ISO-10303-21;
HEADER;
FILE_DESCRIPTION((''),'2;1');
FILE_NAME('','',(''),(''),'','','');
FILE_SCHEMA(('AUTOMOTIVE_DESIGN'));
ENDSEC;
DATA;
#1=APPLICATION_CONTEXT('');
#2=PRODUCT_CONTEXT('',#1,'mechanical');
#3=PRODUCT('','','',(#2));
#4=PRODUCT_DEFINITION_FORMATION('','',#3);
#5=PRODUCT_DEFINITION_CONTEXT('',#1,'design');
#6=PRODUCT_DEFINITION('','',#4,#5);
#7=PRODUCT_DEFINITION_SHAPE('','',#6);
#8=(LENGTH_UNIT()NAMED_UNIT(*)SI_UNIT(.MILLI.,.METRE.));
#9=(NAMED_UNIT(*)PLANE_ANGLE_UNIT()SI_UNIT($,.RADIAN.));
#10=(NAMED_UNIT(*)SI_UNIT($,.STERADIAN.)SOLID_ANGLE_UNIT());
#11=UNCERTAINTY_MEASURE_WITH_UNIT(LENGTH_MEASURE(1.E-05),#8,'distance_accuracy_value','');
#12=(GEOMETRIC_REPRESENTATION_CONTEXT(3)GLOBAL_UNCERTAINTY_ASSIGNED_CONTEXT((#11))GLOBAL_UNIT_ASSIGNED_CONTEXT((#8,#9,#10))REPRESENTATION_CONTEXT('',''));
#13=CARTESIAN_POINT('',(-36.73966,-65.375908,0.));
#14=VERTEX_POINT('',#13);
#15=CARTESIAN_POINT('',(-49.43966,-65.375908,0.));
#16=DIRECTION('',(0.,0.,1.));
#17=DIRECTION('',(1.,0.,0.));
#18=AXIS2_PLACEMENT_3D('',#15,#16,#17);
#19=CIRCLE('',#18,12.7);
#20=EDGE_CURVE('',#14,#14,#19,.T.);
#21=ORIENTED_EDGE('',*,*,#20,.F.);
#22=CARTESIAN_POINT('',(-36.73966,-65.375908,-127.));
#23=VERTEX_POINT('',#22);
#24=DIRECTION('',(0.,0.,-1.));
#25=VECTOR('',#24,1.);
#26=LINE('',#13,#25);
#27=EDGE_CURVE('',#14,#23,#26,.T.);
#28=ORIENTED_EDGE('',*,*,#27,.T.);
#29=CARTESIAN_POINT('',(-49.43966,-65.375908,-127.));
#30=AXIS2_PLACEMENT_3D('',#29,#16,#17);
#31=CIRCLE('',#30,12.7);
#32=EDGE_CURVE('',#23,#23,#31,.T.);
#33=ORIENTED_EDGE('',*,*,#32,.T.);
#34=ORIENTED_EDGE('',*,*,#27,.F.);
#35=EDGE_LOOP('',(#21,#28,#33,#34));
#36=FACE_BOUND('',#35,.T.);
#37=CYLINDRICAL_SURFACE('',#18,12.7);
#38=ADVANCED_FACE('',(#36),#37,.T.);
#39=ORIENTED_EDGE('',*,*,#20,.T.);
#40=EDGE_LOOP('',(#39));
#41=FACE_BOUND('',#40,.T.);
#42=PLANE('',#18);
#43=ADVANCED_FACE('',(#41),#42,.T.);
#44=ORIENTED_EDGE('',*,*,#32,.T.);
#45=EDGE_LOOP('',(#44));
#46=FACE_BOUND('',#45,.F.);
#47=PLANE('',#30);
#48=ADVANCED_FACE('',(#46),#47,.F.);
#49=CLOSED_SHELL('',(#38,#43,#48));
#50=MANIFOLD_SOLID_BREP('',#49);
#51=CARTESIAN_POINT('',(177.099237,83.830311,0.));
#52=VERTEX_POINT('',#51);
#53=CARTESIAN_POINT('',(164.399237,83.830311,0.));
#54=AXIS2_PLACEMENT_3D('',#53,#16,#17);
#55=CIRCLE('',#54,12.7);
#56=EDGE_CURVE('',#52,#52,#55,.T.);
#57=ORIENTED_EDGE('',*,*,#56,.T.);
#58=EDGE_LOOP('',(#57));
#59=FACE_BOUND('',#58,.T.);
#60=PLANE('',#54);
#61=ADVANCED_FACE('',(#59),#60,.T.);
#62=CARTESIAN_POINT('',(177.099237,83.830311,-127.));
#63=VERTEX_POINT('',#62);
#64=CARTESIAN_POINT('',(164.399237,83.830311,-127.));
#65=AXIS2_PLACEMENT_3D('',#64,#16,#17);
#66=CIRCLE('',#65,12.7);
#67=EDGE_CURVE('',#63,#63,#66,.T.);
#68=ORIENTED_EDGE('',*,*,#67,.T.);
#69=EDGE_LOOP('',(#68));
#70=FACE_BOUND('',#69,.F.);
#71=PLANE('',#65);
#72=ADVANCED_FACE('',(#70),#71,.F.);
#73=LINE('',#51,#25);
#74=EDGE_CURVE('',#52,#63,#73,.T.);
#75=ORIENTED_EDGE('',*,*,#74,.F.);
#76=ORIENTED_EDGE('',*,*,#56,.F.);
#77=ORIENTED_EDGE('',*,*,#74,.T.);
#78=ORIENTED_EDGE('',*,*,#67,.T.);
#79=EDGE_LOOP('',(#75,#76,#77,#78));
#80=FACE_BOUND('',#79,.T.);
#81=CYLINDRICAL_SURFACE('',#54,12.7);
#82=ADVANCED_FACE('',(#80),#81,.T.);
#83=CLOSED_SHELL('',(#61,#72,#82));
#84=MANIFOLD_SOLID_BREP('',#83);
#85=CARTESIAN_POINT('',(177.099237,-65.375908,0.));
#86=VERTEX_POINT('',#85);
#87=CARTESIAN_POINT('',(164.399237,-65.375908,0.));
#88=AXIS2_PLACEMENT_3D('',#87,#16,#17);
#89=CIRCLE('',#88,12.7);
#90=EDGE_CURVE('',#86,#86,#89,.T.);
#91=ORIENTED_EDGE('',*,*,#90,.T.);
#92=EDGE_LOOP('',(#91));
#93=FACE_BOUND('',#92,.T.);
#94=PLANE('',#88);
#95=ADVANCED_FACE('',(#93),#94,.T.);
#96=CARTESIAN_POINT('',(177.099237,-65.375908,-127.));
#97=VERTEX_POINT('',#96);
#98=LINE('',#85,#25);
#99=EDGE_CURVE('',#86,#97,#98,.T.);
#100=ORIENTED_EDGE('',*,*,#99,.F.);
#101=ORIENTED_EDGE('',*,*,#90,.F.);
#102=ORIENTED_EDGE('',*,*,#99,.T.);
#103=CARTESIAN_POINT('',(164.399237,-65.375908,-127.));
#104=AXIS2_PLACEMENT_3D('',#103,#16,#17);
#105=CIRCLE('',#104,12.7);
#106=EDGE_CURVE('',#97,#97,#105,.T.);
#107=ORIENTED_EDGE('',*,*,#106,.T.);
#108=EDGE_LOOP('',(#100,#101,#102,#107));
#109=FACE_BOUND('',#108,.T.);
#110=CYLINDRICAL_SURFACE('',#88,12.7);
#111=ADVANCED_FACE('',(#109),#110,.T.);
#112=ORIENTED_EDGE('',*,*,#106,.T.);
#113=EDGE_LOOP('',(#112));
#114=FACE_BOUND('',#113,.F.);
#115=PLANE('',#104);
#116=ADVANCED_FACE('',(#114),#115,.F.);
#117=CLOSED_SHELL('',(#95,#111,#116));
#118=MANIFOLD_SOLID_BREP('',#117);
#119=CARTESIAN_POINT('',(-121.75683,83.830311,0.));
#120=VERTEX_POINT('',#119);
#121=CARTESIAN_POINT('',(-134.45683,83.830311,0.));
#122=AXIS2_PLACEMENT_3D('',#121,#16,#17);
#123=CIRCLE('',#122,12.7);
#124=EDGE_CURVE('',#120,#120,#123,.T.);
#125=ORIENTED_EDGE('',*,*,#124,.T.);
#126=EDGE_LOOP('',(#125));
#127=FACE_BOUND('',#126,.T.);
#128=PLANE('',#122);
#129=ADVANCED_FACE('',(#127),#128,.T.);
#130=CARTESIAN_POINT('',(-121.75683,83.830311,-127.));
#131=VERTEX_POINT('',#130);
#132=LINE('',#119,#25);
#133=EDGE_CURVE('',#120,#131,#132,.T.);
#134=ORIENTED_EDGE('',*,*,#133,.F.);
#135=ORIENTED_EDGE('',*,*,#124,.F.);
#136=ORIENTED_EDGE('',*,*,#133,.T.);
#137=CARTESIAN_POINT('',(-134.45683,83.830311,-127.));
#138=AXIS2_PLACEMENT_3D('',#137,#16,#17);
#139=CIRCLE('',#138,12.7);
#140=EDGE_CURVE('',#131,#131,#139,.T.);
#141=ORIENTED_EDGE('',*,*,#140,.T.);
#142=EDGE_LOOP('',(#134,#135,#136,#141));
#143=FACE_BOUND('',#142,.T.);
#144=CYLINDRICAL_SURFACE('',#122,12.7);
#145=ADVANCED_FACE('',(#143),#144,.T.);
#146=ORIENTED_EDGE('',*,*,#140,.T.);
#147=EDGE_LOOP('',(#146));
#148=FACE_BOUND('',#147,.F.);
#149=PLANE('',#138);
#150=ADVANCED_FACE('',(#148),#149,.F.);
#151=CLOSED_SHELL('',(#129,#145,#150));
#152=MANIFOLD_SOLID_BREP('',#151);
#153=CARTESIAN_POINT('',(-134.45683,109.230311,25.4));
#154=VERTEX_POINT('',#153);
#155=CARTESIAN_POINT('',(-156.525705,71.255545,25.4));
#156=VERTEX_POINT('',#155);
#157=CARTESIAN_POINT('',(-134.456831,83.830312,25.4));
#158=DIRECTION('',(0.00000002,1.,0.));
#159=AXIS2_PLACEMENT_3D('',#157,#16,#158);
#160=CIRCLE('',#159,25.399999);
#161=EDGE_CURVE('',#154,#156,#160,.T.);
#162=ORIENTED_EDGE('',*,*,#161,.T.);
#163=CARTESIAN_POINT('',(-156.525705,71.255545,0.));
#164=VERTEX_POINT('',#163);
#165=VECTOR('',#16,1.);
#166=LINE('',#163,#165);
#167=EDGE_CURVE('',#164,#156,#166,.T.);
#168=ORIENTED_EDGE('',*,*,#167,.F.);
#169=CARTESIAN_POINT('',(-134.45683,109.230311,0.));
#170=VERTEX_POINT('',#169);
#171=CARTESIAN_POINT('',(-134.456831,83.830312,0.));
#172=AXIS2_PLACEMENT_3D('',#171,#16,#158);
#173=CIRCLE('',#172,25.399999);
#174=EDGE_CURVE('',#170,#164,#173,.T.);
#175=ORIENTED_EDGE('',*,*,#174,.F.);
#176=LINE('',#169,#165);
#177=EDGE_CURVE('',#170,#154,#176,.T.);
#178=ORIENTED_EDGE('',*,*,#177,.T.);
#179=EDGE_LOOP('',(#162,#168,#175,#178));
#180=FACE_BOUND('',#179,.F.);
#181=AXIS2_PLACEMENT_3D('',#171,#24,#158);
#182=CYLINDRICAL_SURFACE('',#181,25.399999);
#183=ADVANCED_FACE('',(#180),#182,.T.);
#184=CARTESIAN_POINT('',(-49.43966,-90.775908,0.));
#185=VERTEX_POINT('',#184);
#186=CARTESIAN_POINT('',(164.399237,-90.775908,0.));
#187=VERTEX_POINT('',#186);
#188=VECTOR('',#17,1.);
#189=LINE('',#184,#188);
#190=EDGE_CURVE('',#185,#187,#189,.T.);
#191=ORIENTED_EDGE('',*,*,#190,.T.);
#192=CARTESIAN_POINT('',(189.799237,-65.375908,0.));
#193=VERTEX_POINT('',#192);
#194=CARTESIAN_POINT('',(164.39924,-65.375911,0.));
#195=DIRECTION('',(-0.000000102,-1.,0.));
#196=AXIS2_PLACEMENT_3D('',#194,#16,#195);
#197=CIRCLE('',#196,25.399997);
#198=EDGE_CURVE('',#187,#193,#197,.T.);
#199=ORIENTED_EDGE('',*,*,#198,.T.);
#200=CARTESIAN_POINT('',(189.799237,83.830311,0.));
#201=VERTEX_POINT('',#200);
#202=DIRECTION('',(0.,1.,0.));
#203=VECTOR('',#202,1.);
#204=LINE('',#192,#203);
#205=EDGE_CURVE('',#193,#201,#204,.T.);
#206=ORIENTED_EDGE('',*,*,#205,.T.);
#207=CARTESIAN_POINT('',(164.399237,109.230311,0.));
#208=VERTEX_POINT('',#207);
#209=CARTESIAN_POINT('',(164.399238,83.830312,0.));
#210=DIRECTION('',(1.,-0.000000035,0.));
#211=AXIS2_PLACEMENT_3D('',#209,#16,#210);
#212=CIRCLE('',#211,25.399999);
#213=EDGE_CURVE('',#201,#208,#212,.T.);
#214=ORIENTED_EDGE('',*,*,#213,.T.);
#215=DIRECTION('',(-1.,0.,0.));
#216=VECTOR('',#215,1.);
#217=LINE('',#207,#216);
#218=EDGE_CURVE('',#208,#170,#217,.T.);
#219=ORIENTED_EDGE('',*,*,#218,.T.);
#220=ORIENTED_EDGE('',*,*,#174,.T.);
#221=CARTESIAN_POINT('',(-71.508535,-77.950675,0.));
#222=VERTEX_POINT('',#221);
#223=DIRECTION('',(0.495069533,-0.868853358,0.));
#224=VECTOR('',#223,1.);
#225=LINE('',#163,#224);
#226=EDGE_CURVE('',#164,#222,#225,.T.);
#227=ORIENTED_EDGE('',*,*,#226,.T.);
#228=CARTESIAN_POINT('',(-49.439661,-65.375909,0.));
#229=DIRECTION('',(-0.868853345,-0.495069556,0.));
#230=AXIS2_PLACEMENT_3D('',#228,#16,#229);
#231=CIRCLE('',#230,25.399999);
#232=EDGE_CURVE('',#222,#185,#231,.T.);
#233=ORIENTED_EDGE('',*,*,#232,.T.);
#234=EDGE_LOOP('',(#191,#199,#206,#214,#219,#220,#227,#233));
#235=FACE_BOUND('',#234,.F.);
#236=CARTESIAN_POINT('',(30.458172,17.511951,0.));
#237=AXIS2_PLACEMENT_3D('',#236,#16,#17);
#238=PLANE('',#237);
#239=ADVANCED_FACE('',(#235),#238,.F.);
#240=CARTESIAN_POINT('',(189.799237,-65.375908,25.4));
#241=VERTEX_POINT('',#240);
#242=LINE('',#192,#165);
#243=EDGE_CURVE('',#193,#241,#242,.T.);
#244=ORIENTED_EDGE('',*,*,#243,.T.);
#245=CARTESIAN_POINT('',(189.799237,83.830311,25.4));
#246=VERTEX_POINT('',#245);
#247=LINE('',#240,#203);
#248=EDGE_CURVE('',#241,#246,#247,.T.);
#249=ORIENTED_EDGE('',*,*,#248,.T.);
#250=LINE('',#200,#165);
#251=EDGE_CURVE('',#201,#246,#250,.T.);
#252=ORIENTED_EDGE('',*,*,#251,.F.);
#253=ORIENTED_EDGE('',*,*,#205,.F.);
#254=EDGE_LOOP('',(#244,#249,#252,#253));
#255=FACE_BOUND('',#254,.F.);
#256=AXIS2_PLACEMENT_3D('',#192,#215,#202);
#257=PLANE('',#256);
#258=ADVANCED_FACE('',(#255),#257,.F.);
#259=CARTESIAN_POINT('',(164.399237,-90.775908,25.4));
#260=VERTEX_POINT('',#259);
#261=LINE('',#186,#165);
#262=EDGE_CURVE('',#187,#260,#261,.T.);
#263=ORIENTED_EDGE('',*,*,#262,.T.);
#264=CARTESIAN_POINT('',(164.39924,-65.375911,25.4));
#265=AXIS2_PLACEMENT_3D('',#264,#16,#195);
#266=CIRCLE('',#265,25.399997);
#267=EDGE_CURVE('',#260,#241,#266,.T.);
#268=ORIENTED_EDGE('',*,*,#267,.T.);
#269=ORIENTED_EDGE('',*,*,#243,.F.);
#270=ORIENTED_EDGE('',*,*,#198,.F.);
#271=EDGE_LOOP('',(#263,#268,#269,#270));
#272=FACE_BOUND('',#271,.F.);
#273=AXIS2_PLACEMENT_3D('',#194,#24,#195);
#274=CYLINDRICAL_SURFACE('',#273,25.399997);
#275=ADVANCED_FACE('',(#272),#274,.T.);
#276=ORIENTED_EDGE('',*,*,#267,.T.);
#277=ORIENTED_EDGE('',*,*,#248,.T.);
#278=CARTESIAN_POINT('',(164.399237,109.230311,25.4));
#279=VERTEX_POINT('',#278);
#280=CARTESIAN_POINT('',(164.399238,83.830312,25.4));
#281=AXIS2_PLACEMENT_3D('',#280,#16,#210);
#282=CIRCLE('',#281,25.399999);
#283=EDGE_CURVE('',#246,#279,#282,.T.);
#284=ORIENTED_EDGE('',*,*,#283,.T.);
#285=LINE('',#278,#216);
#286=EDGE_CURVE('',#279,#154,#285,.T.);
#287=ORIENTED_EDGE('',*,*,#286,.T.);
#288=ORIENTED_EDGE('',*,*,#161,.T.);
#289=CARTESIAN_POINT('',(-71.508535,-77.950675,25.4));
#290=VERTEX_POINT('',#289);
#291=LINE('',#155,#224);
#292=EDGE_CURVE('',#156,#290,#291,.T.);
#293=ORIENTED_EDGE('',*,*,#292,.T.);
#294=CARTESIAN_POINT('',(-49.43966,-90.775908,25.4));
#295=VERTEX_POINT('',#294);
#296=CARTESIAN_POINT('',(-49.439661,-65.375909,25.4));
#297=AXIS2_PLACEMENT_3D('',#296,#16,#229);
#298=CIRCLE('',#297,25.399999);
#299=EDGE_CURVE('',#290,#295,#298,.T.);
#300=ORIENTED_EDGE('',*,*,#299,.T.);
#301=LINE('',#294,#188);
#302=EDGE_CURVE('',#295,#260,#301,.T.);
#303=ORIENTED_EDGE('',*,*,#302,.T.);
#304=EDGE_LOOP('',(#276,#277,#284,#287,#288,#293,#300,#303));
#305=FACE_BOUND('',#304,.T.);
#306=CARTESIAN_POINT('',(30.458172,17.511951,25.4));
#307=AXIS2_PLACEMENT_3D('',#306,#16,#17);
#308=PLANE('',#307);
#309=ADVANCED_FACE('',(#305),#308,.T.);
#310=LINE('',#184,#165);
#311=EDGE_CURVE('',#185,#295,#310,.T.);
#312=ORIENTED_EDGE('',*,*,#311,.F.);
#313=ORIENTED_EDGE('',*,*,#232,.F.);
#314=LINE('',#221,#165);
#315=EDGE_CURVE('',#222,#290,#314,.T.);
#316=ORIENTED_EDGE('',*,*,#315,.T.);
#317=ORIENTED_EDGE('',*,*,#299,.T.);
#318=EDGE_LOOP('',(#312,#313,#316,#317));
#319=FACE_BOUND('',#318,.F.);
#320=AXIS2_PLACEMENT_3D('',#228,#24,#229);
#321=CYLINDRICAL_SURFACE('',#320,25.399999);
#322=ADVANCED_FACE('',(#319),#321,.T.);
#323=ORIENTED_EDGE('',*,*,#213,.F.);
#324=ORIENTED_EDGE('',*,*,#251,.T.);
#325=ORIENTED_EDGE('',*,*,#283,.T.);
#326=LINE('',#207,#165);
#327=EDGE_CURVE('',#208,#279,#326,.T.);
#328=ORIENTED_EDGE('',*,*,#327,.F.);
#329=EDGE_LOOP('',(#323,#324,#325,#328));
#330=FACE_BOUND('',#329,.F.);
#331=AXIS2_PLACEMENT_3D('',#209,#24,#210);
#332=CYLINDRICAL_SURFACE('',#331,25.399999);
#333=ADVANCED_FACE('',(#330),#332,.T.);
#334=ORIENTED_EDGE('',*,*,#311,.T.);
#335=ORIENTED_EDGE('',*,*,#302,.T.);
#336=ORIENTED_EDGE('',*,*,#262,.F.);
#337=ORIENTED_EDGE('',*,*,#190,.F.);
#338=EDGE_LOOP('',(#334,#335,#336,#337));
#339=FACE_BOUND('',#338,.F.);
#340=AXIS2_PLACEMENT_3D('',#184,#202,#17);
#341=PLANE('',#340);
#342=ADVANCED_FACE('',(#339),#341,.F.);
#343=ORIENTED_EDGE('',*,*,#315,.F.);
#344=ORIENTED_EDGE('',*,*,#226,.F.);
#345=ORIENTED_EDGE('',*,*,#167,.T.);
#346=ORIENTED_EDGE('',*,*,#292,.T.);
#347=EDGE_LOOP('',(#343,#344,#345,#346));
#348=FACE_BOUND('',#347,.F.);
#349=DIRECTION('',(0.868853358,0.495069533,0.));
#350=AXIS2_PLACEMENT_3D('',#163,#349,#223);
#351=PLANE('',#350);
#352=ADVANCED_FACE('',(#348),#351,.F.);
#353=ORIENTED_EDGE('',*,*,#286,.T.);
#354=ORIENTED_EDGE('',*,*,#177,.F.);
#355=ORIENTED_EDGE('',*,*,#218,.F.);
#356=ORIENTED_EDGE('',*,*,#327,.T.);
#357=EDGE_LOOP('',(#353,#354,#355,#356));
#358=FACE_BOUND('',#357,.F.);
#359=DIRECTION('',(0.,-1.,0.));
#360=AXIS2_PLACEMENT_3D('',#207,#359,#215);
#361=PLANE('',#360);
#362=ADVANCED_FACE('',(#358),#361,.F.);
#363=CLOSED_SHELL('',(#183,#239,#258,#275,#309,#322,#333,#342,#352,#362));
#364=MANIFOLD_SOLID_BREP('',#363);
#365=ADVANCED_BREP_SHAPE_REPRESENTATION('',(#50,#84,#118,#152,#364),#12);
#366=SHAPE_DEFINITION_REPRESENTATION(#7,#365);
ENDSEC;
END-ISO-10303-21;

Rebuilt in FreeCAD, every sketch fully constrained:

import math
import FreeCAD as App
import Part
import Sketcher
from FreeCAD import Vector
Q = App.Units.Quantity

doc = App.newDocument("Part")
body = doc.addObject("PartDesign::Body", "Body")

sketch1 = body.newObject("Sketcher::SketchObject", "Sketch")
sketch1.AttachmentSupport = (doc.getObject("XY_Plane"), [""])
sketch1.MapMode = "FlatFace"
sketch1.addGeometry(Part.Circle(Vector(-134, 84, 0), Vector(0, 0, 1), 13), False)
sketch1.addConstraint(Sketcher.Constraint("Diameter", 0, Q("1 in")))
sketch1.addConstraint(Sketcher.Constraint("DistanceX", 0, 3, -1, 1, Q("134.45683 mm")))
sketch1.addConstraint(Sketcher.Constraint("DistanceY", -1, 1, 0, 3, Q("83.830311 mm")))
pad1 = body.newObject("PartDesign::Pad", "Pad")
pad1.Profile = sketch1
pad1.Length = Q("5 in")
pad1.Reversed = True
body2 = doc.addObject("PartDesign::Body", "Body001")

sketch2 = body2.newObject("Sketcher::SketchObject", "Sketch001")
sketch2.AttachmentSupport = (doc.getObject("XY_Plane001"), [""])
sketch2.MapMode = "FlatFace"
sketch2.addGeometry(Part.Circle(Vector(-49, -65, 0), Vector(0, 0, 1), 13), False)
sketch2.addConstraint(Sketcher.Constraint("Diameter", 0, Q("1 in")))
sketch2.addConstraint(Sketcher.Constraint("DistanceX", 0, 3, -1, 1, Q("49.43966 mm")))
sketch2.addConstraint(Sketcher.Constraint("DistanceY", 0, 3, -1, 1, Q("65.375908 mm")))
pad2 = body2.newObject("PartDesign::Pad", "Pad001")
pad2.Profile = sketch2
pad2.Length = Q("5 in")
pad2.Reversed = True
body3 = doc.addObject("PartDesign::Body", "Body002")

sketch3 = body3.newObject("Sketcher::SketchObject", "Sketch002")
sketch3.AttachmentSupport = (doc.getObject("XY_Plane002"), [""])
sketch3.MapMode = "FlatFace"
sketch3.addGeometry(Part.Circle(Vector(164, -65, 0), Vector(0, 0, 1), 13), False)
sketch3.addConstraint(Sketcher.Constraint("Diameter", 0, Q("1 in")))
sketch3.addConstraint(Sketcher.Constraint("DistanceX", -1, 1, 0, 3, Q("164.399237 mm")))
sketch3.addConstraint(Sketcher.Constraint("DistanceY", 0, 3, -1, 1, Q("65.375908 mm")))
pad3 = body3.newObject("PartDesign::Pad", "Pad002")
pad3.Profile = sketch3
pad3.Length = Q("5 in")
pad3.Reversed = True
body4 = doc.addObject("PartDesign::Body", "Body003")

sketch4 = body4.newObject("Sketcher::SketchObject", "Sketch003")
sketch4.AttachmentSupport = (doc.getObject("XY_Plane003"), [""])
sketch4.MapMode = "FlatFace"
sketch4.addGeometry(Part.Circle(Vector(164, 84, 0), Vector(0, 0, 1), 13), False)
sketch4.addConstraint(Sketcher.Constraint("Diameter", 0, Q("1 in")))
sketch4.addConstraint(Sketcher.Constraint("DistanceY", -1, 1, 0, 3, Q("83.830311 mm")))
sketch4.addConstraint(Sketcher.Constraint("DistanceX", -1, 1, 0, 3, Q("164.399237 mm")))
pad4 = body4.newObject("PartDesign::Pad", "Pad003")
pad4.Profile = sketch4
pad4.Length = Q("5 in")
pad4.Reversed = True
body5 = doc.addObject("PartDesign::Body", "Body004")

sketch5 = body5.newObject("Sketcher::SketchObject", "Sketch004")
sketch5.AttachmentSupport = (doc.getObject("XY_Plane004"), [""])
sketch5.MapMode = "FlatFace"
sketch5.addGeometry(Part.LineSegment(Vector(164, 109, 0), Vector(-134, 109, 0)), False)
sketch5.addGeometry(Part.ArcOfCircle(Part.Circle(Vector(-134, 84, 0), Vector(0, 0, 1), 25), math.radians(90), math.radians(210)), False)
sketch5.addGeometry(Part.LineSegment(Vector(-157, 71, 0), Vector(-72, -78, 0)), False)
sketch5.addGeometry(Part.ArcOfCircle(Part.Circle(Vector(-49, -65, 0), Vector(0, 0, 1), 25), math.radians(-150), math.radians(-90)), False)
sketch5.addGeometry(Part.LineSegment(Vector(-49, -91, 0), Vector(164, -91, 0)), False)
sketch5.addGeometry(Part.ArcOfCircle(Part.Circle(Vector(164, -65, 0), Vector(0, 0, 1), 25), math.radians(-90), math.radians(0)), False)
sketch5.addGeometry(Part.LineSegment(Vector(190, -65, 0), Vector(190, 84, 0)), False)
sketch5.addGeometry(Part.ArcOfCircle(Part.Circle(Vector(164, 84, 0), Vector(0, 0, 1), 25), math.radians(0), math.radians(90)), False)
sketch5.addConstraint(Sketcher.Constraint("Tangent", 0, 2, 1, 1))
sketch5.addConstraint(Sketcher.Constraint("Tangent", 1, 2, 2, 1))
sketch5.addConstraint(Sketcher.Constraint("Tangent", 2, 2, 3, 1))
sketch5.addConstraint(Sketcher.Constraint("Tangent", 3, 2, 4, 1))
sketch5.addConstraint(Sketcher.Constraint("Tangent", 4, 2, 5, 1))
sketch5.addConstraint(Sketcher.Constraint("Tangent", 5, 2, 6, 1))
sketch5.addConstraint(Sketcher.Constraint("Tangent", 6, 2, 7, 1))
sketch5.addConstraint(Sketcher.Constraint("Tangent", 7, 2, 0, 1))
sketch5.addConstraint(Sketcher.Constraint("Horizontal", 0))
sketch5.addConstraint(Sketcher.Constraint("Horizontal", 4))
sketch5.addConstraint(Sketcher.Constraint("Vertical", 6))
sketch5.addConstraint(Sketcher.Constraint("Equal", 1, 3))
sketch5.addConstraint(Sketcher.Constraint("Equal", 5, 7))
sketch5.addConstraint(Sketcher.Constraint("Horizontal", 1, 3, 7, 3))
sketch5.addConstraint(Sketcher.Constraint("Radius", 1, Q("1 in")))
sketch5.addConstraint(Sketcher.Constraint("DistanceY", 6, 1, 6, 2, Q("149.206219 mm")))
sketch5.addConstraint(Sketcher.Constraint("DistanceX", 3, 3, 5, 3, Q("213.8389 mm")))
sketch5.addConstraint(Sketcher.Constraint("DistanceX", 0, 2, 0, 1, Q("298.856067 mm")))
sketch5.addConstraint(Sketcher.Constraint("DistanceX", 1, 3, -1, 1, Q("134.456831 mm")))
sketch5.addConstraint(Sketcher.Constraint("DistanceY", -1, 1, 1, 3, Q("83.830312 mm")))
pad5 = body5.newObject("PartDesign::Pad", "Pad004")
pad5.Profile = sketch5
pad5.Length = Q("1 in")

doc.recompute()
